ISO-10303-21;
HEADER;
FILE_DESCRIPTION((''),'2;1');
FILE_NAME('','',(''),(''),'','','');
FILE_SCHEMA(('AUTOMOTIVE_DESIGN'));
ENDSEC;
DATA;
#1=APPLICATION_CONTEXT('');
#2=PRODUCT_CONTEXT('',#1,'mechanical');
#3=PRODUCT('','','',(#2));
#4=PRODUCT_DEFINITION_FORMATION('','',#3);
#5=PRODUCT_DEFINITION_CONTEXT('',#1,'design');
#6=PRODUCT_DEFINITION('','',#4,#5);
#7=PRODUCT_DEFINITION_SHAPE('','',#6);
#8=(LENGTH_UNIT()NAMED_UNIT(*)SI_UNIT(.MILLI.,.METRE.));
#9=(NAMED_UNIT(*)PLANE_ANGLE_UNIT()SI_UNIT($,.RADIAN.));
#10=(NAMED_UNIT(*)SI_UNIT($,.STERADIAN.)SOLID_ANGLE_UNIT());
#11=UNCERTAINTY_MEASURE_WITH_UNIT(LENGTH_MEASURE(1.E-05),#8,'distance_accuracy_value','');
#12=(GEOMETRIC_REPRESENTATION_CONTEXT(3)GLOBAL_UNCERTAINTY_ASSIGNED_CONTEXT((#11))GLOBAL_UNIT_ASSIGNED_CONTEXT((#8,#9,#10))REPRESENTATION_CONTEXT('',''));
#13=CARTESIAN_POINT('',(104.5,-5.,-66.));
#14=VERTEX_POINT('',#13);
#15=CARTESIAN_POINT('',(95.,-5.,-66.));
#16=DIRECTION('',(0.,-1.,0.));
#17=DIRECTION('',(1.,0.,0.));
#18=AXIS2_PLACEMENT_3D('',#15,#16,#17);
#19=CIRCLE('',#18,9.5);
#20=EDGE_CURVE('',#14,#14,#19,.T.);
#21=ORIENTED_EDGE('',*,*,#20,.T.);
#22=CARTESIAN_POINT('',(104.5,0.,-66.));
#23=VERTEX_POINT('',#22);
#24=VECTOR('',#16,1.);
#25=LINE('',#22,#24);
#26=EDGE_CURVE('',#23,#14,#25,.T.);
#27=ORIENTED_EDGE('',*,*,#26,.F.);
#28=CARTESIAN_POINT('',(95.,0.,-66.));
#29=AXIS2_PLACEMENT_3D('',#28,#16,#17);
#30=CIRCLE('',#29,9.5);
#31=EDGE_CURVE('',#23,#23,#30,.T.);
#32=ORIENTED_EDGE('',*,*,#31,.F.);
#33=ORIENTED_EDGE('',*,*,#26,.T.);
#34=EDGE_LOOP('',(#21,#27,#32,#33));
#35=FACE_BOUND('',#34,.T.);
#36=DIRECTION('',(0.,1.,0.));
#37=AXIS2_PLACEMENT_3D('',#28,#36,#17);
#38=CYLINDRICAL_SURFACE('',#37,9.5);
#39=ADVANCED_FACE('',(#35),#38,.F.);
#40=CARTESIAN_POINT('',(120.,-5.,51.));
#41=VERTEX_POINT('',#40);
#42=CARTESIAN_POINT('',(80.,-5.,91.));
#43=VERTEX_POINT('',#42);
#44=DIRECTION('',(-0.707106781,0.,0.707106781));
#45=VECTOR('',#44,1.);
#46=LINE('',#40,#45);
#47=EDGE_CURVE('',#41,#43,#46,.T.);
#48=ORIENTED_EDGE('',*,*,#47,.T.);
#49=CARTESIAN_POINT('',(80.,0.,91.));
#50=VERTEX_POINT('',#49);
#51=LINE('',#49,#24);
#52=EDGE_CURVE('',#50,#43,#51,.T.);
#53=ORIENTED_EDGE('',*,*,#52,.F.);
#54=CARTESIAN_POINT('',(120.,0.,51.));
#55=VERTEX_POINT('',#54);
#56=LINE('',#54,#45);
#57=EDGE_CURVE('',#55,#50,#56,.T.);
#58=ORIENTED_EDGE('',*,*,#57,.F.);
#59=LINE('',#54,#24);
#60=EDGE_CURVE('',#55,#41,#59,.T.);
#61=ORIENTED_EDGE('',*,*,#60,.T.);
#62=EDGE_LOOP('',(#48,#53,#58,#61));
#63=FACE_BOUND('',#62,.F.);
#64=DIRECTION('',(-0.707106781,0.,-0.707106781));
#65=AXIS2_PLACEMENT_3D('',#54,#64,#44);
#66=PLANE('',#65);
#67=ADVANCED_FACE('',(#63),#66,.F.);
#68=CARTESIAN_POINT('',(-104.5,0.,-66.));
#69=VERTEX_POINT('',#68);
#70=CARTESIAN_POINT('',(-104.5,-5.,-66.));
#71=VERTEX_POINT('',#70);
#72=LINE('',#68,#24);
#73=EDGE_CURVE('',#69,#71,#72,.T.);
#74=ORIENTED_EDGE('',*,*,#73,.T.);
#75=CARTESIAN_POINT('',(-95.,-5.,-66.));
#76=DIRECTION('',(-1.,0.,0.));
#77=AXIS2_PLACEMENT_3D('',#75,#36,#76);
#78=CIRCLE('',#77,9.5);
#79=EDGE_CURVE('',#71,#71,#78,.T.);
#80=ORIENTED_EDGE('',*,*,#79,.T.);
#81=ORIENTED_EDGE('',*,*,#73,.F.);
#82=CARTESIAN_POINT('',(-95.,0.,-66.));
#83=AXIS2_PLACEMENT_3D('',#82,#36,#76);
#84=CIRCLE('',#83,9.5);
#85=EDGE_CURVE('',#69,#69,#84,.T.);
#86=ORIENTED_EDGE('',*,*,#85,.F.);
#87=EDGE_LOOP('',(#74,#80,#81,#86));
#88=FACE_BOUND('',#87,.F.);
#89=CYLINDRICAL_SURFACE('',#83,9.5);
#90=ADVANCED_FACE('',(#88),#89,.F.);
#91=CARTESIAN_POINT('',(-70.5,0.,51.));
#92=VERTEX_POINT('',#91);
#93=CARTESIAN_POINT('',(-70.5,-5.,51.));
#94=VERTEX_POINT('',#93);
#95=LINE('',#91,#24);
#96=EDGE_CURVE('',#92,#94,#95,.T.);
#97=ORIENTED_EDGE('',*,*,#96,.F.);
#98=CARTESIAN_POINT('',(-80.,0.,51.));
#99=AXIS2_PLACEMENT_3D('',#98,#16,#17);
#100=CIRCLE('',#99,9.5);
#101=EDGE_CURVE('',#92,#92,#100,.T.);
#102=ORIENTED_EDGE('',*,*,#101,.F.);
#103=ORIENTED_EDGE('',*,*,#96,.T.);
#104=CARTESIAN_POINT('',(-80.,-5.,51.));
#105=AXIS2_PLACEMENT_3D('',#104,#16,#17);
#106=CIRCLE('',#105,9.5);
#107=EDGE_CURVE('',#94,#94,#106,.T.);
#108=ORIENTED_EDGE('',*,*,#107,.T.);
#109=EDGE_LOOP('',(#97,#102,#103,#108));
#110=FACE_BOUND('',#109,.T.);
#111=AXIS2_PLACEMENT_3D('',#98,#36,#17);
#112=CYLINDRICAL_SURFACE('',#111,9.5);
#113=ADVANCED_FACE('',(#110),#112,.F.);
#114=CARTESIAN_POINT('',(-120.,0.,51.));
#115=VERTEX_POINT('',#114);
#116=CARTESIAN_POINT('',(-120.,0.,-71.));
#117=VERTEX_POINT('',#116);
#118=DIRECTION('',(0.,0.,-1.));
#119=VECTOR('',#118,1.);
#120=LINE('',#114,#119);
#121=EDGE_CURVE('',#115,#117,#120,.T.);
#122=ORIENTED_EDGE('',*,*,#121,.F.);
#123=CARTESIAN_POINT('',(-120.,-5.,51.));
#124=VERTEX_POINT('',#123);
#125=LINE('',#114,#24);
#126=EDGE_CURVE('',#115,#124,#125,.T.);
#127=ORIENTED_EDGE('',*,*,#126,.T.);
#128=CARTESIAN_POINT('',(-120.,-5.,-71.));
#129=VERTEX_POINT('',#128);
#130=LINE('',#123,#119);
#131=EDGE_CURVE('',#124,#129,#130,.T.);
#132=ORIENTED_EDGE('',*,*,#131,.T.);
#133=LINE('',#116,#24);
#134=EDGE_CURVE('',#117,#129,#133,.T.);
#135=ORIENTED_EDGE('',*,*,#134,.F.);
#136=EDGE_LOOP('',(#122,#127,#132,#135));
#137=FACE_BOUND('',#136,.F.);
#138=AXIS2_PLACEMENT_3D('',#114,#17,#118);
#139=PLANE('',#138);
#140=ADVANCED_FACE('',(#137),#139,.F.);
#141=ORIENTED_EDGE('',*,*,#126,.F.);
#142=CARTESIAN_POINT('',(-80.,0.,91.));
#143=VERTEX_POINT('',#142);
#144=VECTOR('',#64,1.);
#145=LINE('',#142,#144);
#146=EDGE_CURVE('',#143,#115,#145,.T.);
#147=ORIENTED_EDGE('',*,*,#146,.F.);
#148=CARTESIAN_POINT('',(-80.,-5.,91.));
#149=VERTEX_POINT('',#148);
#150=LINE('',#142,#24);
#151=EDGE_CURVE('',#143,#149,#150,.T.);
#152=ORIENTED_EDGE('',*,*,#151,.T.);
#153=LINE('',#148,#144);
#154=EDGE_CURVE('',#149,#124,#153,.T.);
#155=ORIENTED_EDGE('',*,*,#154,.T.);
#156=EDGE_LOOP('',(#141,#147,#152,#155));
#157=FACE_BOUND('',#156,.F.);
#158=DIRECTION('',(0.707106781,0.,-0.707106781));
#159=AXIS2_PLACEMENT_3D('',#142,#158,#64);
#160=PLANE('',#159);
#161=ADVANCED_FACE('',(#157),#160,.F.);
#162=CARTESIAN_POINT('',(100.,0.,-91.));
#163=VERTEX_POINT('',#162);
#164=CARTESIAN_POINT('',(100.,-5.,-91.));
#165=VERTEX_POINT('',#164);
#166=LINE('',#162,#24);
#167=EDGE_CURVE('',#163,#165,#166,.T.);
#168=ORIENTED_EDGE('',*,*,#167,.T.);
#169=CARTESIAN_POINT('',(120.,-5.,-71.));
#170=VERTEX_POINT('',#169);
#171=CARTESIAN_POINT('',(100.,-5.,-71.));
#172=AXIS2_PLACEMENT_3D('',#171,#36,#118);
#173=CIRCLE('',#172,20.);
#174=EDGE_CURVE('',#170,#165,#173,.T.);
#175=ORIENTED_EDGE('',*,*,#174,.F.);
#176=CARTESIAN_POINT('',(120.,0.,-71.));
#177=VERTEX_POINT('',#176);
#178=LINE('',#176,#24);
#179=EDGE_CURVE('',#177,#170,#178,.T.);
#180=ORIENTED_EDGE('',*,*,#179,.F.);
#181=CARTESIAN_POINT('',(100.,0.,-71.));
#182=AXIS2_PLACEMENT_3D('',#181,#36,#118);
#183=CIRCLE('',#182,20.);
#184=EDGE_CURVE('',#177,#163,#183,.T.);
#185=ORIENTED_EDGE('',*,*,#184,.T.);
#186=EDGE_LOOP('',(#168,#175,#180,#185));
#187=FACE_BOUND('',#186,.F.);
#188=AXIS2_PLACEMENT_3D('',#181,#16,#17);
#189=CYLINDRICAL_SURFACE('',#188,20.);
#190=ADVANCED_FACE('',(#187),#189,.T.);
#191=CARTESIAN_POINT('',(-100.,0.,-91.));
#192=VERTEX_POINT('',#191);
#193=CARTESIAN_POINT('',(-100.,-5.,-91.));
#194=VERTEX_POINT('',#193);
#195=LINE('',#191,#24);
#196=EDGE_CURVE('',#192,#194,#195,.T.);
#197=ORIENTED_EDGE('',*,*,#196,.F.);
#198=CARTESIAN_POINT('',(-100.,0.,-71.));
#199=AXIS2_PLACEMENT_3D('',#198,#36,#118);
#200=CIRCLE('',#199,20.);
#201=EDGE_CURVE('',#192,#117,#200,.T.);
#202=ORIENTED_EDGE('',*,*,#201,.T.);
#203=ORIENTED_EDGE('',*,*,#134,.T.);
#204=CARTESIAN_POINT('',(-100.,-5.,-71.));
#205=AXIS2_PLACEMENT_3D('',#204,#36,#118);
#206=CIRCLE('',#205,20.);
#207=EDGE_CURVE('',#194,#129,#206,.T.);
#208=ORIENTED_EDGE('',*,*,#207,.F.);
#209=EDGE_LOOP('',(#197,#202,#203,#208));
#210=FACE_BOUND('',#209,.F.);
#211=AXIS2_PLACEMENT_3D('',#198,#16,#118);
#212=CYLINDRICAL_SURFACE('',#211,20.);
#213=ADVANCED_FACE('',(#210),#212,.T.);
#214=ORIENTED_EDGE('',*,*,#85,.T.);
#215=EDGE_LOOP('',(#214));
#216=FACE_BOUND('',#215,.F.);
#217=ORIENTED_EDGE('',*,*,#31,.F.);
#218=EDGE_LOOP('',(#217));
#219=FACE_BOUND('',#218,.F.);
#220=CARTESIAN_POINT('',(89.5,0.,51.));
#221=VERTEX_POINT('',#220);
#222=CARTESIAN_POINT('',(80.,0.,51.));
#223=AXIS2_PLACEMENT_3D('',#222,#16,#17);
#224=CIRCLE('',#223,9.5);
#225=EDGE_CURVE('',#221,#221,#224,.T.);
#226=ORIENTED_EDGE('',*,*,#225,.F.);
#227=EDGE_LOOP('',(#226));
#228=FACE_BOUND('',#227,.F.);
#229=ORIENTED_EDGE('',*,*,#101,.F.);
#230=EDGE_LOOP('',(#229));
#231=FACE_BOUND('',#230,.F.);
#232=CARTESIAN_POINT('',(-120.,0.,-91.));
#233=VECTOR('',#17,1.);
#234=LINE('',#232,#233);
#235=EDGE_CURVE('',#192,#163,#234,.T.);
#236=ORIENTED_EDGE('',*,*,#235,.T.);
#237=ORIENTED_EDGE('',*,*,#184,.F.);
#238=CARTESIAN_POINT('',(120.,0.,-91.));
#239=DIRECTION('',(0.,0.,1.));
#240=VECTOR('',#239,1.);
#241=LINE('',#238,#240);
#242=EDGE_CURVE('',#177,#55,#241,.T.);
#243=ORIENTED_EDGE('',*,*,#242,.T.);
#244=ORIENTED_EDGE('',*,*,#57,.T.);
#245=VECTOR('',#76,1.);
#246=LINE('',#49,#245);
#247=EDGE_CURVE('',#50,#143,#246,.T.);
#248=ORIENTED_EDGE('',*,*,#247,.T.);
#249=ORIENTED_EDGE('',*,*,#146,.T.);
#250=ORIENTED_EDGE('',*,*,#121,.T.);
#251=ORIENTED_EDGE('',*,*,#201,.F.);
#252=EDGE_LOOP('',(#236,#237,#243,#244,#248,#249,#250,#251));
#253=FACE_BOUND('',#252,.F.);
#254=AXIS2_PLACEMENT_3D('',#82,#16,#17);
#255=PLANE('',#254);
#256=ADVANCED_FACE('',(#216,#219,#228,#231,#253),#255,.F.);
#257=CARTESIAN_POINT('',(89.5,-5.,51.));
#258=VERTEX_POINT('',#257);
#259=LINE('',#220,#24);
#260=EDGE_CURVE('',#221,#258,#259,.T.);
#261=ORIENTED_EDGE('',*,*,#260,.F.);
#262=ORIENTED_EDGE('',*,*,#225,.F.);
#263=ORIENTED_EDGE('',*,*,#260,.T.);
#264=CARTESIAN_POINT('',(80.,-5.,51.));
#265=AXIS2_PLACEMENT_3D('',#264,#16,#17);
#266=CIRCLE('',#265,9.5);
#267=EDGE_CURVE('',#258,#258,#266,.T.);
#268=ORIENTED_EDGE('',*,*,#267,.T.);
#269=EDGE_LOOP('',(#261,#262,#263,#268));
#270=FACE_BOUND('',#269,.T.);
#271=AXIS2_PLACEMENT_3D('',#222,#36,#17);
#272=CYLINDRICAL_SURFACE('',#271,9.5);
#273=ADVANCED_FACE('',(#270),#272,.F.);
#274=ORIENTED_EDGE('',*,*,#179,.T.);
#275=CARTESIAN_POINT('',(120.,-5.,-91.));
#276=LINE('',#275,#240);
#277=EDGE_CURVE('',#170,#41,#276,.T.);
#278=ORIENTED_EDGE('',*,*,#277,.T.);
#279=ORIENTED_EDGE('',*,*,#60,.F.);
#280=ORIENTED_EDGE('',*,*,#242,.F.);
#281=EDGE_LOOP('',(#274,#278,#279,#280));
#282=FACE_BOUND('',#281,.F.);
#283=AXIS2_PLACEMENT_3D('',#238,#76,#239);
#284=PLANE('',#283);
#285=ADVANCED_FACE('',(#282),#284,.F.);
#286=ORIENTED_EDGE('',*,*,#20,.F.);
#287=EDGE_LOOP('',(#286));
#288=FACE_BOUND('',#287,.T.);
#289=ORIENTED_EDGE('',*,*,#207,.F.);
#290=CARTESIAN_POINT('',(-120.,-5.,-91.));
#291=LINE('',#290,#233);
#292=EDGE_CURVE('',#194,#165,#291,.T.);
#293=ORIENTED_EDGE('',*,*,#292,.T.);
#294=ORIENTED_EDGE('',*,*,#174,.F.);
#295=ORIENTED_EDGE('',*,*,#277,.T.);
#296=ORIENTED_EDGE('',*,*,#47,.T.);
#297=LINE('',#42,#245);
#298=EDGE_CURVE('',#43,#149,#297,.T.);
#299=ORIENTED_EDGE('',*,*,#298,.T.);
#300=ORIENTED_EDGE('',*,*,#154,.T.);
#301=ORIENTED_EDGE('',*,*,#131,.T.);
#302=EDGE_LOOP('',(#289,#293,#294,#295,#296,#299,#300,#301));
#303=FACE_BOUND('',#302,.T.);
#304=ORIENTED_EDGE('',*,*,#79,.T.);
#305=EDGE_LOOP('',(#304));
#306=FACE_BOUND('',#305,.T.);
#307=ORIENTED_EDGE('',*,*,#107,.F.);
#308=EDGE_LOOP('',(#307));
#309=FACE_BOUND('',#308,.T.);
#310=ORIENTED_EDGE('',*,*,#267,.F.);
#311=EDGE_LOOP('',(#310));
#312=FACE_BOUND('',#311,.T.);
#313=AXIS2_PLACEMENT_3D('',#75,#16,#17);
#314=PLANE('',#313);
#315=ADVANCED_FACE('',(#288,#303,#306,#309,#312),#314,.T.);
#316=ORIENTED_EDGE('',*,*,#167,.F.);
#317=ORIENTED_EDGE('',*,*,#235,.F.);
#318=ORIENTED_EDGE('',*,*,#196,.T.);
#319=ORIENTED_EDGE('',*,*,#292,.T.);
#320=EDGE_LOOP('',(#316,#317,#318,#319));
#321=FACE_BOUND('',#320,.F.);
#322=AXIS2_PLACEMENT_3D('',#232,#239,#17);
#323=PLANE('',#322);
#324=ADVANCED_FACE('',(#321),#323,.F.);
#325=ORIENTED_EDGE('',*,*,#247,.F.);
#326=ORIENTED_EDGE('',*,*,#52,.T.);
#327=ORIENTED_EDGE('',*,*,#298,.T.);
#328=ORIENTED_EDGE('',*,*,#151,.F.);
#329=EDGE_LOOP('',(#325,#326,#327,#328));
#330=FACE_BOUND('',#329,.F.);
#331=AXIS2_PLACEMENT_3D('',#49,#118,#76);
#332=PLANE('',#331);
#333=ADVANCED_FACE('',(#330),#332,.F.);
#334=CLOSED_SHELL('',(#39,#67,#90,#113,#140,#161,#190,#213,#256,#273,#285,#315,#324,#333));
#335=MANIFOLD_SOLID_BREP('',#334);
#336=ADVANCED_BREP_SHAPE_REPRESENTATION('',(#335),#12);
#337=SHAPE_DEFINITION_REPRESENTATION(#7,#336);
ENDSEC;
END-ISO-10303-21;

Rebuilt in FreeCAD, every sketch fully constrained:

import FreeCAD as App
import Part
import Sketcher
from FreeCAD import Vector
Q = App.Units.Quantity


def edges_at(feature, points):
    """Names of the edges that pass closest to the given points."""
    edges = feature.Shape.Edges
    near = lambda p: min(range(len(edges)), key=lambda i: edges[i].distToShape(Part.Vertex(*p))[0])
    return sorted({f"Edge{near(p) + 1}" for p in points})


def add_polygon(sketch, points):
    """Adds a closed chain of lines whose ends are joined by coincident constraints."""
    first, n = sketch.GeometryCount, len(points)
    for a, b in zip(points, points[1:] + points[:1]):
        sketch.addGeometry(Part.LineSegment(App.Vector(*a, 0), App.Vector(*b, 0)), False)
    for i in range(n):
        sketch.addConstraint(Sketcher.Constraint("Coincident", first + i, 2, first + (i + 1) % n, 1))

doc = App.newDocument("Part")
params = doc.addObject("Spreadsheet::Sheet", "Params")
for row, (alias, value) in enumerate([
    ("sketch1_diameter", "19 mm"),
    ("sketch1_width", "160 mm"),
    ("sketch1_width2", "240 mm"),
    ("sketch1_height", "142 mm"),
    ("pad1_length", "5 mm"),
    ("fillet_radius", "20 mm"),
], start=1):
    params.set(f"A{row}", alias)
    params.set(f"B{row}", "=" + value)
    params.setAlias(f"B{row}", alias)

body = doc.addObject("PartDesign::Body", "Body")

sketch1 = body.newObject("Sketcher::SketchObject", "Sketch")
sketch1.AttachmentSupport = (doc.getObject("XZ_Plane"), [""])
sketch1.MapMode = "FlatFace"
add_polygon(sketch1, [(120, 51), (80, 91), (-80, 91), (-120, 51), (-120, -91), (120, -91)])
sketch1.addGeometry(Part.Circle(Vector(-95, -66, 0), Vector(0, 0, 1), 9.5), False)
sketch1.addGeometry(Part.Circle(Vector(95, -66, 0), Vector(0, 0, 1), 9.5), False)
sketch1.addGeometry(Part.Circle(Vector(-80, 51, 0), Vector(0, 0, 1), 9.5), False)
sketch1.addGeometry(Part.Circle(Vector(80, 51, 0), Vector(0, 0, 1), 9.5), False)
sketch1.addConstraint(Sketcher.Constraint("Horizontal", 1))
sketch1.addConstraint(Sketcher.Constraint("Vertical", 3))
sketch1.addConstraint(Sketcher.Constraint("Horizontal", 4))
sketch1.addConstraint(Sketcher.Constraint("Vertical", 5))
sketch1.addConstraint(Sketcher.Constraint("Equal", 6, 7))
sketch1.addConstraint(Sketcher.Constraint("Equal", 7, 8))
sketch1.addConstraint(Sketcher.Constraint("Equal", 8, 9))
sketch1.addConstraint(Sketcher.Constraint("Symmetric", 6, 3, 7, 3, -2))
sketch1.addConstraint(Sketcher.Constraint("Symmetric", 8, 3, 9, 3, -2))
sketch1.addConstraint(Sketcher.Constraint("Symmetric", 2, 2, 5, 2, -2))
sketch1.addConstraint(Sketcher.Constraint("Perpendicular", 0, 2))
sketch1.addConstraint(Sketcher.Constraint("Horizontal", 9, 3, 2, 2))
sketch1.addConstraint(Sketcher.Constraint("Vertical", 9, 3, 0, 2))
sketch1.addConstraint(Sketcher.Constraint("Vertical", 8, 3, 1, 2))
sketch1.addConstraint(Sketcher.Constraint("Diameter", 6, Q("19 mm")))
sketch1.addConstraint(Sketcher.Constraint("DistanceX", 1, 2, 1, 1, Q("160 mm")))
sketch1.addConstraint(Sketcher.Constraint("DistanceX", 4, 1, 4, 2, Q("240 mm")))
sketch1.addConstraint(Sketcher.Constraint("DistanceY", 3, 2, 3, 1, Q("142 mm")))
sketch1.addConstraint(Sketcher.Constraint("DistanceX", 6, 3, -1, 1, Q("95 mm")))
sketch1.addConstraint(Sketcher.Constraint("DistanceY", 6, 3, -1, 1, Q("66 mm")))
sketch1.addConstraint(Sketcher.Constraint("DistanceY", -1, 1, 8, 3, Q("51 mm")))
sketch1.setExpression("Constraints[20]", "Params.sketch1_diameter")
sketch1.setExpression("Constraints[21]", "Params.sketch1_width")
sketch1.setExpression("Constraints[22]", "Params.sketch1_width2")
sketch1.setExpression("Constraints[23]", "Params.sketch1_height")
pad1 = body.newObject("PartDesign::Pad", "Pad")
pad1.Profile = sketch1
pad1.setExpression("Length", "Params.pad1_length")
doc.recompute()

fillet = body.newObject("PartDesign::Fillet", "Fillet")
fillet.Base = (pad1, edges_at(pad1, [(-120, -2.5, -91), (120, -2.5, -91)]))
fillet.setExpression("Radius", "Params.fillet_radius")

doc.recompute()
